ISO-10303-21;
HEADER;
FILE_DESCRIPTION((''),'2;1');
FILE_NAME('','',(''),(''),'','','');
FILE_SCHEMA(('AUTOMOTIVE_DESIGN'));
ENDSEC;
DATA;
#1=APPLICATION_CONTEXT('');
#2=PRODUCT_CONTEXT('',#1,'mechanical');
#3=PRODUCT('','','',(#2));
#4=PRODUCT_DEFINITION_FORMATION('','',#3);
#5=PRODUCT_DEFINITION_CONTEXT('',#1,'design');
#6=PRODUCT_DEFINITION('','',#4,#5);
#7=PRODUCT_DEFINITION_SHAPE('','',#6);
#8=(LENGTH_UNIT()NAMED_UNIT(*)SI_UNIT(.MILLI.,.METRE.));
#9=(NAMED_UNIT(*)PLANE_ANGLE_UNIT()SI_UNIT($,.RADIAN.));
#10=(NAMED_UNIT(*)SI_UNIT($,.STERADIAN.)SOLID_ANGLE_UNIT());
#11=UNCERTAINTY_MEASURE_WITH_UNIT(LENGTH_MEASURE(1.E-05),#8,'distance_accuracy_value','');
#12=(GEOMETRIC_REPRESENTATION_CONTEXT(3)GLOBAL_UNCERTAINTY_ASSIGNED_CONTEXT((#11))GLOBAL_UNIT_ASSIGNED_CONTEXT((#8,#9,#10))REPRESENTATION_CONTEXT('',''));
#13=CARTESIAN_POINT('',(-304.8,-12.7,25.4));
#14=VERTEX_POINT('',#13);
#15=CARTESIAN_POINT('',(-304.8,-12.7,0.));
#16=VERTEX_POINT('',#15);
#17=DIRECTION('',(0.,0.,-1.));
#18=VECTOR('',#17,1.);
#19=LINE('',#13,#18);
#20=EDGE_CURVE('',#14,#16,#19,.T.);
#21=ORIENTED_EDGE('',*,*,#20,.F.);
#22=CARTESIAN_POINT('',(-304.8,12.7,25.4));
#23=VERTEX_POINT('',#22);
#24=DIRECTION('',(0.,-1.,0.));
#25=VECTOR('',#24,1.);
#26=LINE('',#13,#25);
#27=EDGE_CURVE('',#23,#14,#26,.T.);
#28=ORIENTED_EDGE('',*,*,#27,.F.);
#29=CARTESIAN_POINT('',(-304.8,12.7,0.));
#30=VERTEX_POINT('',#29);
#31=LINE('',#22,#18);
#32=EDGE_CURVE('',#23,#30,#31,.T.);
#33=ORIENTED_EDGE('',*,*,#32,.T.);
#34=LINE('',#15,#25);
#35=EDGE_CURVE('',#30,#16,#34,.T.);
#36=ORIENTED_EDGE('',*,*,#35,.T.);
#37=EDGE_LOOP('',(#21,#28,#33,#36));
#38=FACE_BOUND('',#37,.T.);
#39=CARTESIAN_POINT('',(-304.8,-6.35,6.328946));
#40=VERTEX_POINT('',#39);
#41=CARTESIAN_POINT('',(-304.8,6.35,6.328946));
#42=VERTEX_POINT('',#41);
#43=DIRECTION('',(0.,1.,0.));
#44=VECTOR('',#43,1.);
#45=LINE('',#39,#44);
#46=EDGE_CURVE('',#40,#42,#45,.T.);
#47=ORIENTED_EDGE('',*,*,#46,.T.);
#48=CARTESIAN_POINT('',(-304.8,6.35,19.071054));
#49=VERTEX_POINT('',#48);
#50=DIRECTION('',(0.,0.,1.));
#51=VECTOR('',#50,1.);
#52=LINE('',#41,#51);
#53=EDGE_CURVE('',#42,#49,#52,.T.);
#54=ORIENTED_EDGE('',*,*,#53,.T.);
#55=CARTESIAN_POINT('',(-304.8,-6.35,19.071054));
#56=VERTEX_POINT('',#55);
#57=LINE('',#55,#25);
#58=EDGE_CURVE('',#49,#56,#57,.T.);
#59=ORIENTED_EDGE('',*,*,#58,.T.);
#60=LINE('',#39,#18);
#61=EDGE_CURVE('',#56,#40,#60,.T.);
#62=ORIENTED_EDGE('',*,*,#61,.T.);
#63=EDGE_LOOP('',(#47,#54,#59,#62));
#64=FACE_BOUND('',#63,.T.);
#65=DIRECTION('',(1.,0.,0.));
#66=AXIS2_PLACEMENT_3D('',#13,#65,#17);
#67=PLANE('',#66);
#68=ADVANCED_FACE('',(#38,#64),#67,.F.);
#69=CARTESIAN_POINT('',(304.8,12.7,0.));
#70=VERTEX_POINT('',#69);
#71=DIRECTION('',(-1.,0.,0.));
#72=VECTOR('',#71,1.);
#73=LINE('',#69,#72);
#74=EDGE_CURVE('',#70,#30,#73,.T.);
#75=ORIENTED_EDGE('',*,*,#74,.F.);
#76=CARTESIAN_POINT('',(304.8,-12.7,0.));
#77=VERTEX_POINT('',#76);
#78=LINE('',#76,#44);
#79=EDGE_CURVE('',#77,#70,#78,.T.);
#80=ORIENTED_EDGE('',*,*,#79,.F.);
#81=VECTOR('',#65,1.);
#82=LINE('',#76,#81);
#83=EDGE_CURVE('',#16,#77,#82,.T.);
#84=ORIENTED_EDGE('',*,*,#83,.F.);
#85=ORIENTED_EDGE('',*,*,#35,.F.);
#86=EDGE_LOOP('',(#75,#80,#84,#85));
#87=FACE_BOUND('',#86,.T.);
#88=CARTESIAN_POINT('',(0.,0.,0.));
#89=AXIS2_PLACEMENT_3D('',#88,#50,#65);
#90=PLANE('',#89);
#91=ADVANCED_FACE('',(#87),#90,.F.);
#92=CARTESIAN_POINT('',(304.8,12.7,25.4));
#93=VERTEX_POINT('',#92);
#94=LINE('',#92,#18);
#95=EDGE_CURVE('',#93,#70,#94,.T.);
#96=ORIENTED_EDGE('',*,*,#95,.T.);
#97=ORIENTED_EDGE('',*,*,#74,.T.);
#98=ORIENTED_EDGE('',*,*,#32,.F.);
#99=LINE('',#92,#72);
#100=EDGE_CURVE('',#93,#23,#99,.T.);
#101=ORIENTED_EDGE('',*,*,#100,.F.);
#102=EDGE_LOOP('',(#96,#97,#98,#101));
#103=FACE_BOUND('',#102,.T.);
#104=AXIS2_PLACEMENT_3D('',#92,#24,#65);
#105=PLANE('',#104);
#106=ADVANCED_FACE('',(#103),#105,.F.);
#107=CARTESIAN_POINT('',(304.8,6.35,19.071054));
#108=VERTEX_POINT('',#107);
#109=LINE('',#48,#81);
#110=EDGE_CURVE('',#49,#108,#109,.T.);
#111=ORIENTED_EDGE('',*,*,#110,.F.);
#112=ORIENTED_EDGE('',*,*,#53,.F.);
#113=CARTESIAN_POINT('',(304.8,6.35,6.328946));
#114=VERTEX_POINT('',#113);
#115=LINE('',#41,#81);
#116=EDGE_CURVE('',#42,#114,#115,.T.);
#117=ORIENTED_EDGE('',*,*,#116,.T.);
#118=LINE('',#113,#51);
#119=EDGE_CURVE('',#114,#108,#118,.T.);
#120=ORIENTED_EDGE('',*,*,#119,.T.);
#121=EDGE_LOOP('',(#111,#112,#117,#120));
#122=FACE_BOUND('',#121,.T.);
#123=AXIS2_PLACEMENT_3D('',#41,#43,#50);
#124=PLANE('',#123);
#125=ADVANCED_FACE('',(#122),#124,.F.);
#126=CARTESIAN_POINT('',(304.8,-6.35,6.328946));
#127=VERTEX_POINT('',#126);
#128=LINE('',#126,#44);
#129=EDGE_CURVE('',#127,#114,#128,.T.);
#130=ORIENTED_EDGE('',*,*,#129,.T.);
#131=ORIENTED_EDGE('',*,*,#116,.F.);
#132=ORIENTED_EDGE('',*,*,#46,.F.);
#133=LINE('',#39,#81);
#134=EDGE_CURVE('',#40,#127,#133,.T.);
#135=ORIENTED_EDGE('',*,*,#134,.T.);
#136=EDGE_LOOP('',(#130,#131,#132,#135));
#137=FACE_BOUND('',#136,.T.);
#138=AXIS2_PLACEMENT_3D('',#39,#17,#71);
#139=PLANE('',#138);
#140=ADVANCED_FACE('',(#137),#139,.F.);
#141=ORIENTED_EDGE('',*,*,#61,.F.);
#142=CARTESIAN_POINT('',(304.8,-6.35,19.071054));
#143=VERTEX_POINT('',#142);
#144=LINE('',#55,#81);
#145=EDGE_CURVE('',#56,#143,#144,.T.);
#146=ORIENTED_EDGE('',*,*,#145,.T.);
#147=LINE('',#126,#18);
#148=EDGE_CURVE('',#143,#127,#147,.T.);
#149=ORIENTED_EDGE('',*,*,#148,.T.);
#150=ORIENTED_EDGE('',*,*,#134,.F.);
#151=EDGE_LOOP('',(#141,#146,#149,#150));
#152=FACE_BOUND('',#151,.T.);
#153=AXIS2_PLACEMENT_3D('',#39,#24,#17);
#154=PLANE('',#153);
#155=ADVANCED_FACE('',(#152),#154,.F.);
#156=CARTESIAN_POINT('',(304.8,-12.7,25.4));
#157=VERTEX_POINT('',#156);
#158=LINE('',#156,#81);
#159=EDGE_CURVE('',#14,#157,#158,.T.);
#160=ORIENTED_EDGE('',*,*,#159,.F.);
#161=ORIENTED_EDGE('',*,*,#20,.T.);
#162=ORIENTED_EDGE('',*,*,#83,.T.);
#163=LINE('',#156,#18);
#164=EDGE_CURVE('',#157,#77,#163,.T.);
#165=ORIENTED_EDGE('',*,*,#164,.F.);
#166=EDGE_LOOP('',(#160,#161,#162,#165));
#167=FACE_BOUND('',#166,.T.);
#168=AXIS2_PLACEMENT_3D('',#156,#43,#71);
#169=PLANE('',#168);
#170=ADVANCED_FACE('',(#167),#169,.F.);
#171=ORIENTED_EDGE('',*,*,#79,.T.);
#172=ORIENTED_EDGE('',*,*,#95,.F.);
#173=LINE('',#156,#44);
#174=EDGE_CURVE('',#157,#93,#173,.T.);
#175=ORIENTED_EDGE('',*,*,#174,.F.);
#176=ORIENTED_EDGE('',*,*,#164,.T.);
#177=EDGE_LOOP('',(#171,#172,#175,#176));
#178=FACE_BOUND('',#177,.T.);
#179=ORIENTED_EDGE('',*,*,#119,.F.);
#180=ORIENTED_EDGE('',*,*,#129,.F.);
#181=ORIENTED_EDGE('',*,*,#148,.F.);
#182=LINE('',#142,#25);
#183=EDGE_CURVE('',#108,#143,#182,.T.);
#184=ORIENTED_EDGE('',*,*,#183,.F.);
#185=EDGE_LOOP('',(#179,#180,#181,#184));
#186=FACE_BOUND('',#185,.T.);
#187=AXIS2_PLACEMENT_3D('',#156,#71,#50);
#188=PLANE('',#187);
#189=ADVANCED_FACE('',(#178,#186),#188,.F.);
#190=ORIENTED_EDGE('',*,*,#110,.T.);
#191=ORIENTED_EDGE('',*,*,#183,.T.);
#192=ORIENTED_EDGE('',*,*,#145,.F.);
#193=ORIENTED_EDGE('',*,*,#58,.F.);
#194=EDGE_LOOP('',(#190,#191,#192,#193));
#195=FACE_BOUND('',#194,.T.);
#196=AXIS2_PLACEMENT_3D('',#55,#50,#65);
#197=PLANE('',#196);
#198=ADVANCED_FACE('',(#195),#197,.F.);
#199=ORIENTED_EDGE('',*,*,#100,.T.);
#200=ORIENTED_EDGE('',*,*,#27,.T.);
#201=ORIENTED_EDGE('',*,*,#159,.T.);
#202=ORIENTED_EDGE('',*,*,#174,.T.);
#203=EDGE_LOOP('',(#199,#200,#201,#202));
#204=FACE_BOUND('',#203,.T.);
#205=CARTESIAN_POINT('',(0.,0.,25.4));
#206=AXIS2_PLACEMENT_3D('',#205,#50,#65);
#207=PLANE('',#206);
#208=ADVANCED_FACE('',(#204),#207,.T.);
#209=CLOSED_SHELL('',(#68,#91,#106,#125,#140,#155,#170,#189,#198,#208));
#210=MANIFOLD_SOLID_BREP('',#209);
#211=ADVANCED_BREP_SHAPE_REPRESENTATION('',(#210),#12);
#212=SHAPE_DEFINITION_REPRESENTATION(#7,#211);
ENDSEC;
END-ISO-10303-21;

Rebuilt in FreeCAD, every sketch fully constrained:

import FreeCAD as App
import Part
import Sketcher

V = App.Vector
Q = App.Units.Quantity


def add_polygon(sketch, points):
    """Adds a closed chain of lines whose ends are joined by coincident constraints."""
    first, n = sketch.GeometryCount, len(points)
    for a, b in zip(points, points[1:] + points[:1]):
        sketch.addGeometry(Part.LineSegment(App.Vector(*a, 0), App.Vector(*b, 0)), False)
    for i in range(n):
        sketch.addConstraint(Sketcher.Constraint("Coincident", first + i, 2, first + (i + 1) % n, 1))

doc = App.newDocument("Part")
body = doc.addObject("PartDesign::Body", "Body")

sketch1 = body.newObject("Sketcher::SketchObject", "Sketch")
sketch1.AttachmentSupport = (doc.getObject("XY_Plane"), [""])
sketch1.MapMode = "FlatFace"
add_polygon(sketch1, [(-304.8, 12.7), (-304.8, -12.7), (304.8, -12.7), (304.8, 12.7)])
sketch1.addConstraint([
    Sketcher.Constraint("Vertical", 0),
    Sketcher.Constraint("Horizontal", 1),
    Sketcher.Constraint("Vertical", 2),
    Sketcher.Constraint("Horizontal", 3),
    Sketcher.Constraint("Symmetric", 0, 2, 2, 2, -1, 1),
    Sketcher.Constraint("DistanceX", 1, 1, 1, 2, Q("24 in")),
    Sketcher.Constraint("DistanceY", 0, 2, 0, 1, Q("1 in")),
])
pad1 = body.newObject("PartDesign::Pad", "Pad")
pad1.Profile = sketch1
pad1.Length = Q("1 in")

sketch2 = body.newObject("Sketcher::SketchObject", "Sketch001")
sketch2.AttachmentSupport = (doc.getObject("YZ_Plane"), [""])
sketch2.MapMode = "FlatFace"
sketch2.AttachmentOffset = App.Placement(V(0, 0, 12 * 25.4), App.Rotation())
add_polygon(sketch2, [(6.35, 19.071054), (-6.35, 19.071054), (-6.35, 6.328946), (6.35, 6.328946)])
sketch2.addConstraint([
    Sketcher.Constraint("Horizontal", 0),
    Sketcher.Constraint("Vertical", 1),
    Sketcher.Constraint("Horizontal", 2),
    Sketcher.Constraint("Vertical", 3),
    Sketcher.Constraint("DistanceX", 0, 2, 0, 1, Q("0.5 in")),
    Sketcher.Constraint("DistanceX", 0, 2, -1, 1, Q("0.25 in")),
    Sketcher.Constraint("DistanceY", 1, 2, 1, 1, 12.742109),
    Sketcher.Constraint("DistanceY", -1, 1, 0, 2, 19.071054),
])
pocket1 = body.newObject("PartDesign::Pocket", "Pocket")
pocket1.Profile = sketch2
pocket1.Type = "ThroughAll"

doc.recompute()
